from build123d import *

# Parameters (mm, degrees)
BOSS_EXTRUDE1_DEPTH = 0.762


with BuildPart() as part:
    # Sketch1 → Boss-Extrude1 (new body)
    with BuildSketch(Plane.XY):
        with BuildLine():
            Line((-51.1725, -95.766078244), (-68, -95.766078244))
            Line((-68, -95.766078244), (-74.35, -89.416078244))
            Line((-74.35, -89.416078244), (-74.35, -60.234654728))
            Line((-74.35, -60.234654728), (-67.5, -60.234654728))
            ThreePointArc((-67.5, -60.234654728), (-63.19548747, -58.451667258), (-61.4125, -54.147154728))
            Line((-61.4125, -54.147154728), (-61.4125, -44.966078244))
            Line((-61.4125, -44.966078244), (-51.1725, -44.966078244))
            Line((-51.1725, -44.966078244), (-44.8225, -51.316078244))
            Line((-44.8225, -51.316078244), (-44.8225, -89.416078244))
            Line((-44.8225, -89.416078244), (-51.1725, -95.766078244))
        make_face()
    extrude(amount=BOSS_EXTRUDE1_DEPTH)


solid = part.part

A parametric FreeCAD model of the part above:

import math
import FreeCAD as App
import Part
import Sketcher
from FreeCAD import Vector
Q = App.Units.Quantity

doc = App.newDocument("Part")
params = doc.addObject("Spreadsheet::Sheet", "Params")
for row, (alias, value) in enumerate([
    ("sketch1_height", "1.5 in"),
    ("pad1_length", "0.03 in"),
], start=1):
    params.set(f"A{row}", alias)
    params.set(f"B{row}", "=" + value)
    params.setAlias(f"B{row}", alias)

body = doc.addObject("PartDesign::Body", "Body")

# Sketch on XY plane
sketch1 = body.newObject("Sketcher::SketchObject", "Sketch")
sketch1.AttachmentSupport = (doc.getObject("XY_Plane"), [""])
sketch1.MapMode = "FlatFace"
sketch1.addGeometry(Part.LineSegment(Vector(-68, -96, 0), Vector(-51, -96, 0)), False)
sketch1.addGeometry(Part.LineSegment(Vector(-51, -96, 0), Vector(-45, -89, 0)), False)
sketch1.addGeometry(Part.LineSegment(Vector(-45, -89, 0), Vector(-45, -51, 0)), False)
sketch1.addGeometry(Part.LineSegment(Vector(-45, -51, 0), Vector(-51, -45, 0)), False)
sketch1.addGeometry(Part.LineSegment(Vector(-51, -45, 0), Vector(-61, -45, 0)), False)
sketch1.addGeometry(Part.LineSegment(Vector(-61, -45, 0), Vector(-61, -54, 0)), False)
sketch1.addGeometry(Part.ArcOfCircle(Part.Circle(Vector(-68, -54, 0), Vector(0, 0, 1), 6), math.radians(-90), math.radians(0)), False)
sketch1.addGeometry(Part.LineSegment(Vector(-68, -60, 0), Vector(-74, -60, 0)), False)
sketch1.addGeometry(Part.LineSegment(Vector(-74, -60, 0), Vector(-74, -89, 0)), False)
sketch1.addGeometry(Part.LineSegment(Vector(-74, -89, 0), Vector(-68, -96, 0)), False)
sketch1.addConstraint(Sketcher.Constraint("Coincident", 0, 2, 1, 1))
sketch1.addConstraint(Sketcher.Constraint("Coincident", 1, 2, 2, 1))
sketch1.addConstraint(Sketcher.Constraint("Coincident", 2, 2, 3, 1))
sketch1.addConstraint(Sketcher.Constraint("Coincident", 3, 2, 4, 1))
sketch1.addConstraint(Sketcher.Constraint("Coincident", 4, 2, 5, 1))
sketch1.addConstraint(Sketcher.Constraint("Tangent", 5, 2, 6, 2))
sketch1.addConstraint(Sketcher.Constraint("Tangent", 6, 1, 7, 1))
sketch1.addConstraint(Sketcher.Constraint("Coincident", 7, 2, 8, 1))
sketch1.addConstraint(Sketcher.Constraint("Coincident", 8, 2, 9, 1))
sketch1.addConstraint(Sketcher.Constraint("Coincident", 9, 2, 0, 1))
sketch1.addConstraint(Sketcher.Constraint("Horizontal", 0))
sketch1.addConstraint(Sketcher.Constraint("Vertical", 2))
sketch1.addConstraint(Sketcher.Constraint("Horizontal", 4))
sketch1.addConstraint(Sketcher.Constraint("Vertical", 5))
sketch1.addConstraint(Sketcher.Constraint("Horizontal", 7))
sketch1.addConstraint(Sketcher.Constraint("Vertical", 8))
sketch1.addConstraint(Sketcher.Constraint("Perpendicular", 1, 3))
sketch1.addConstraint(Sketcher.Constraint("Parallel", 3, 9))
sketch1.addConstraint(Sketcher.Constraint("Horizontal", 1, 2, 8, 2))
sketch1.addConstraint(Sketcher.Constraint("Vertical", 0, 2, 3, 2))
sketch1.addConstraint(Sketcher.Constraint("Equal", 1, 3))
sketch1.addConstraint(Sketcher.Constraint("DistanceY", 2, 1, 2, 2, Q("1.5 in")))
sketch1.addConstraint(Sketcher.Constraint("DistanceY", 0, 2, 3, 2, Q("2 in")))
sketch1.addConstraint(Sketcher.Constraint("Radius", 6, 6.0875))
sketch1.addConstraint(Sketcher.Constraint("DistanceX", 0, 1, 0, 2, Q("0.6625 in")))
sketch1.addConstraint(Sketcher.Constraint("DistanceX", 4, 2, 4, 1, 10.24))
sketch1.addConstraint(Sketcher.Constraint("DistanceX", 6, 3, -1, 1, 67.5))
sketch1.addConstraint(Sketcher.Constraint("DistanceY", 5, 2, 5, 1, 9.181076))
sketch1.addConstraint(Sketcher.Constraint("DistanceY", 0, 2, -1, 1, 95.766078))
sketch1.setExpression("Constraints[21]", "Params.sketch1_height")
pad1 = body.newObject("PartDesign::Pad", "Pad")
pad1.Profile = sketch1
pad1.setExpression("Length", "Params.pad1_length")

doc.recompute()
